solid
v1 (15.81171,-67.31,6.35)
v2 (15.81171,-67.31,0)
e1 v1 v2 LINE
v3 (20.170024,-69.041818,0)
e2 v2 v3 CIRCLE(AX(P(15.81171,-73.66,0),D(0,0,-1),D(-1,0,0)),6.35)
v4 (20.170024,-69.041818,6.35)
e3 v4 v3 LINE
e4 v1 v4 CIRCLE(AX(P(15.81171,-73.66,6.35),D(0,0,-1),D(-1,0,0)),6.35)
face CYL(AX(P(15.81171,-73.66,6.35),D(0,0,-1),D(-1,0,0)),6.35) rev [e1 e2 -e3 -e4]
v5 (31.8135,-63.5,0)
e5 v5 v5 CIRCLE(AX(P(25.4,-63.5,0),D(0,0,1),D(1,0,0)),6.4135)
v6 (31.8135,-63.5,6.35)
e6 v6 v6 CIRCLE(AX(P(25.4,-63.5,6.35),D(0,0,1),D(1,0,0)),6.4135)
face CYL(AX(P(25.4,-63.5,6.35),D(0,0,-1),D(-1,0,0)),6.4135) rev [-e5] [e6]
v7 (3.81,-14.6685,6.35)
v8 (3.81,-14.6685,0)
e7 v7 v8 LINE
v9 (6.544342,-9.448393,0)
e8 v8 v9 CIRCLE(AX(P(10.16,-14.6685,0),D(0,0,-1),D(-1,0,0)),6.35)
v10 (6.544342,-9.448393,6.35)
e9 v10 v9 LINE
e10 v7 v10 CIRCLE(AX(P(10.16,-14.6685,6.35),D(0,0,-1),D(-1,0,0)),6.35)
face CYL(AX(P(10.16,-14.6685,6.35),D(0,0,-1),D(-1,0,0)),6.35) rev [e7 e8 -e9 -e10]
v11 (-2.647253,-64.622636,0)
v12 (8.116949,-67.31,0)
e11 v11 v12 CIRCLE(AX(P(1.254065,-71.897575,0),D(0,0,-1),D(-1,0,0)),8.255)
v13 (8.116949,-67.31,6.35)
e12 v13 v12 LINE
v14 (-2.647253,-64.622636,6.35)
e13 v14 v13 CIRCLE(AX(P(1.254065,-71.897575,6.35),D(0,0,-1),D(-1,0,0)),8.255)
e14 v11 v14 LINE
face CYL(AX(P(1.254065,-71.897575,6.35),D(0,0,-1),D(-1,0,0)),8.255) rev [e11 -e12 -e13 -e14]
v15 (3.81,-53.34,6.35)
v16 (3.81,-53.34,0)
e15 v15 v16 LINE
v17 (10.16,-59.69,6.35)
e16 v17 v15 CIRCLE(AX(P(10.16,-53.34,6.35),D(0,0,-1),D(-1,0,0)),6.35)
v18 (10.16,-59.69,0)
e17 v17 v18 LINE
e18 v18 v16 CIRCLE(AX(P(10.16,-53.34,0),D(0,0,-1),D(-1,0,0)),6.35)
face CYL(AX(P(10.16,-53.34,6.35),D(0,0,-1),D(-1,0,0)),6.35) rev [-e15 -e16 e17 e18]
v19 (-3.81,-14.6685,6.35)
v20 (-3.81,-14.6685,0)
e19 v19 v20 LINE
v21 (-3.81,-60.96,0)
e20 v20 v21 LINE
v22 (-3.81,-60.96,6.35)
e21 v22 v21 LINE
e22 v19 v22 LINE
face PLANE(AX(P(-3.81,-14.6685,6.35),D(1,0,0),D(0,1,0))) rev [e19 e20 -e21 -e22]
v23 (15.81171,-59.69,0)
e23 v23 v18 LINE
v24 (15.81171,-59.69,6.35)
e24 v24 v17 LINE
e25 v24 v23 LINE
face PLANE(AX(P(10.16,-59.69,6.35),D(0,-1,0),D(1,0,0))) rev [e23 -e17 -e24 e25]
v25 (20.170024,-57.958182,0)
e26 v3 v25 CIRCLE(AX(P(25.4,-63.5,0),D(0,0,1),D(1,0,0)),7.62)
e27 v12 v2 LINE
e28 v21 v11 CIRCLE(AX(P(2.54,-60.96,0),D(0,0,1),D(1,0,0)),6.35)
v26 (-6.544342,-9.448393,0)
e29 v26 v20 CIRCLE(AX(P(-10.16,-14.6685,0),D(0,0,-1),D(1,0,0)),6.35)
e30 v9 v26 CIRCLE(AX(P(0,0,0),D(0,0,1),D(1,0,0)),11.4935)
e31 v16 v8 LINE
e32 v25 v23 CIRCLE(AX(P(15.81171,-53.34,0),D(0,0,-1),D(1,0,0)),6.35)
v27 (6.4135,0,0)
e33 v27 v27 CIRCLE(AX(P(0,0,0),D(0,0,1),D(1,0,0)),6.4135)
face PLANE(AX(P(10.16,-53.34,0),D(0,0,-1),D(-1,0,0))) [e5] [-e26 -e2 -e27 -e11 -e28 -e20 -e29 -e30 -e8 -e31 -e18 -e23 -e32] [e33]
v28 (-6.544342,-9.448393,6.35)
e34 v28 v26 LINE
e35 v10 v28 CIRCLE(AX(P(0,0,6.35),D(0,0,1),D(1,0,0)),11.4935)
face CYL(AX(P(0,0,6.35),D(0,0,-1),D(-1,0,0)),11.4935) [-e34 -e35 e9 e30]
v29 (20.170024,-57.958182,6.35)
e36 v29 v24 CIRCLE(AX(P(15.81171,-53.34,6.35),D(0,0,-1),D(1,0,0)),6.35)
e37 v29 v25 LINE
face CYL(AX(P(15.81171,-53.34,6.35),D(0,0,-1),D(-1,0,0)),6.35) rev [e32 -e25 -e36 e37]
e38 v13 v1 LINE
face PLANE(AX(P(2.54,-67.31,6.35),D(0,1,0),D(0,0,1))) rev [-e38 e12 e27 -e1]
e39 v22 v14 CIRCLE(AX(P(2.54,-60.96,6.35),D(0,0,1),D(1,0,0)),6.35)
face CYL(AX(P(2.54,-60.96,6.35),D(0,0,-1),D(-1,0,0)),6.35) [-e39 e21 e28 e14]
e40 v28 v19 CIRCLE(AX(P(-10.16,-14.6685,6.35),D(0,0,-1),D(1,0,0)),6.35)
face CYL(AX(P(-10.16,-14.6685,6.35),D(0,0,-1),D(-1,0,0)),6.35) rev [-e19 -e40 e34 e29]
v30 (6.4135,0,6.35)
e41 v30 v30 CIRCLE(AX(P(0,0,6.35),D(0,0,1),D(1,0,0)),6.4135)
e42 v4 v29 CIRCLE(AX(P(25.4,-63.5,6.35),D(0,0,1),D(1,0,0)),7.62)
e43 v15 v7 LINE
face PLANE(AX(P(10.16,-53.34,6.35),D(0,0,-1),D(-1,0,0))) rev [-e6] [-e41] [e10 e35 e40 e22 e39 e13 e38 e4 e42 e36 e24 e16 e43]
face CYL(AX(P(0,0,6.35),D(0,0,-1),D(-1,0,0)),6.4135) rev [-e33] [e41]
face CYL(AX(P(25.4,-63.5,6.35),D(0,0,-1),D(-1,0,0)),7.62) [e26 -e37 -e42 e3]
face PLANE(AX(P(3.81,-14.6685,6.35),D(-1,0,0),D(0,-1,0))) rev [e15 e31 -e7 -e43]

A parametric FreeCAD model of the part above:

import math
import FreeCAD as App
import Part
import Sketcher

V = App.Vector
Q = App.Units.Quantity

doc = App.newDocument("Part")
params = doc.addObject("Spreadsheet::Sheet", "Params")
for row, (alias, value) in enumerate([
    ("sketch1_radius", "0.3 in"),
    ("sketch1_radius2", "0.25 in"),
    ("sketch1_diameter", "0.505 in"),
    ("pad1_length", "0.25 in"),
    ("sketch2_diameter", "0.65 in"),
], start=1):
    params.set(f"A{row}", alias)
    params.set(f"B{row}", "=" + value)
    params.setAlias(f"B{row}", alias)

body = doc.addObject("PartDesign::Body", "Body")

sketch1 = body.newObject("Sketcher::SketchObject", "Sketch")
sketch1.AttachmentSupport = (doc.getObject("XY_Plane"), [""])
sketch1.MapMode = "FlatFace"
sketch1.addGeometry([
    Part.LineSegment(V(-3.81, -14.6685, 0), V(-3.81, -60.96, 0)),
    Part.ArcOfCircle(Part.Circle(V(2.54, -60.96, 0), V(0, 0, 1), 6.35), math.radians(180), math.radians(270)),
    Part.LineSegment(V(2.54, -67.31, 0), V(15.81171, -67.31, 0)),
    Part.ArcOfCircle(Part.Circle(V(15.81171, -73.66, 0), V(0, 0, 1), 6.35), math.radians(46.658242), math.radians(90)),
    Part.ArcOfCircle(Part.Circle(V(25.4, -63.5, 0), V(0, 0, 1), 7.62), math.radians(-133.341758), math.radians(133.341758)),
    Part.ArcOfCircle(Part.Circle(V(15.81171, -53.34, 0), V(0, 0, 1), 6.35), math.radians(-90), math.radians(-46.658242)),
    Part.LineSegment(V(15.81171, -59.69, 0), V(10.16, -59.69, 0)),
    Part.ArcOfCircle(Part.Circle(V(10.16, -53.34, 0), V(0, 0, 1), 6.35), math.radians(180), math.radians(270)),
    Part.LineSegment(V(3.81, -53.34, 0), V(3.81, -14.6685, 0)),
    Part.ArcOfCircle(Part.Circle(V(10.16, -14.6685, 0), V(0, 0, 1), 6.35), math.radians(124.708049), math.radians(180)),
    Part.ArcOfCircle(Part.Circle(V(0, 0, 0), V(0, 0, 1), 11.4935), math.radians(-55.291951), math.radians(235.291951)),
    Part.ArcOfCircle(Part.Circle(V(-10.16, -14.6685, 0), V(0, 0, 1), 6.35), math.radians(0), math.radians(55.291951)),
    Part.Circle(V(25.4, -63.5, 0), V(0, 0, 1), 6.4135),
    Part.Circle(V(0, 0, 0), V(0, 0, 1), 6.4135),
], False)
sketch1.addConstraint([
    Sketcher.Constraint("Tangent", 0, 2, 1, 1),
    Sketcher.Constraint("Tangent", 1, 2, 2, 1),
    Sketcher.Constraint("Tangent", 2, 2, 3, 2),
    Sketcher.Constraint("Tangent", 3, 1, 4, 1),
    Sketcher.Constraint("Tangent", 4, 2, 5, 2),
    Sketcher.Constraint("Tangent", 5, 1, 6, 1),
    Sketcher.Constraint("Tangent", 6, 2, 7, 2),
    Sketcher.Constraint("Tangent", 7, 1, 8, 1),
    Sketcher.Constraint("Tangent", 8, 2, 9, 2),
    Sketcher.Constraint("Tangent", 9, 1, 10, 1),
    Sketcher.Constraint("Tangent", 10, 2, 11, 2),
    Sketcher.Constraint("Tangent", 11, 1, 0, 1),
    Sketcher.Constraint("Vertical", 0),
    Sketcher.Constraint("Horizontal", 2),
    Sketcher.Constraint("Horizontal", 6),
    Sketcher.Constraint("Vertical", 8),
    Sketcher.Constraint("Coincident", 10, 3, -1, 1),
    Sketcher.Constraint("Coincident", 13, 3, -1, 1),
    Sketcher.Constraint("Coincident", 12, 3, 4, 3),
    Sketcher.Constraint("Equal", 1, 3),
    Sketcher.Constraint("Equal", 3, 5),
    Sketcher.Constraint("Equal", 5, 7),
    Sketcher.Constraint("Equal", 7, 9),
    Sketcher.Constraint("Equal", 9, 11),
    Sketcher.Constraint("Equal", 12, 13),
    Sketcher.Constraint("Horizontal", 9, 3, 11, 3),
    Sketcher.Constraint("Vertical", 3, 3, 5, 3),
    Sketcher.Constraint("Radius", 4, Q("0.3 in")),
    Sketcher.Constraint("Radius", 1, Q("0.25 in")),
    Sketcher.Constraint("Diameter", 12, Q("0.505 in")),
    Sketcher.Constraint("DistanceX", -1, 1, 4, 3, Q("1 in")),
    Sketcher.Constraint("DistanceX", -1, 1, 1, 3, Q("0.1 in")),
    Sketcher.Constraint("DistanceY", 1, 3, -1, 1, Q("2.4 in")),
    Sketcher.Constraint("DistanceY", 4, 3, -1, 1, Q("2.5 in")),
    Sketcher.Constraint("Radius", 10, Q("0.4525 in")),
])
sketch1.setExpression("Constraints[27]", "Params.sketch1_radius")
sketch1.setExpression("Constraints[28]", "Params.sketch1_radius2")
sketch1.setExpression("Constraints[29]", "Params.sketch1_diameter")
pad1 = body.newObject("PartDesign::Pad", "Pad")
pad1.Profile = sketch1
pad1.setExpression("Length", "Params.pad1_length")

sketch2 = body.newObject("Sketcher::SketchObject", "Sketch001")
sketch2.AttachmentSupport = (doc.getObject("XY_Plane"), [""])
sketch2.MapMode = "FlatFace"
sketch2.addGeometry(Part.Circle(V(1.254065, -71.897575, 0), V(0, 0, 1), 8.255), False)
sketch2.addConstraint([
    Sketcher.Constraint("Diameter", 0, Q("0.65 in")),
    Sketcher.Constraint("DistanceX", -1, 1, 0, 3, 1.254065),
    Sketcher.Constraint("DistanceY", 0, 3, -1, 1, 71.897575),
])
sketch2.setExpression("Constraints[0]", "Params.sketch2_diameter")
pocket1 = body.newObject("PartDesign::Pocket", "Pocket")
pocket1.Profile = sketch2
pocket1.Type = "ThroughAll"
pocket1.Reversed = True

doc.recompute()
